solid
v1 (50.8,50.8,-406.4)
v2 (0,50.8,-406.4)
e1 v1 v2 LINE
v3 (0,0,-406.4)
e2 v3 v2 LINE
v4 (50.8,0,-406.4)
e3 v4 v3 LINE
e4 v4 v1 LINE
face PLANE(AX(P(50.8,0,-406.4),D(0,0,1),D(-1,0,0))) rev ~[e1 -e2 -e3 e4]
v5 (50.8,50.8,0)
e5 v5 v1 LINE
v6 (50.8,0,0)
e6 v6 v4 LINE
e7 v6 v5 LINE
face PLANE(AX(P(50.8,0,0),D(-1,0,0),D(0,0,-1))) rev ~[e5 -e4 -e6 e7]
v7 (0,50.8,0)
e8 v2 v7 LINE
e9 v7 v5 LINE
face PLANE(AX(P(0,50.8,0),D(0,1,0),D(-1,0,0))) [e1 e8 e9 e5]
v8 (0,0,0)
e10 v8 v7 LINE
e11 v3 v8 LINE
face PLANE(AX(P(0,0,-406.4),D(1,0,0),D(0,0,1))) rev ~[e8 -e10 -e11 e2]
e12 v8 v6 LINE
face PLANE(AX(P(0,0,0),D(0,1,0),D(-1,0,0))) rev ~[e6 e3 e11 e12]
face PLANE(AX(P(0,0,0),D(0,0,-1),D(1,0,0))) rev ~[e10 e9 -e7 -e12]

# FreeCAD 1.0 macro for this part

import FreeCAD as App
import Part
import Sketcher
Q = App.Units.Quantity

doc = App.newDocument("Part")
body = doc.addObject("PartDesign::Body", "Body")

sketch1 = body.newObject("Sketcher::SketchObject", "Sketch")
sketch1.AttachmentSupport = (doc.getObject("XZ_Plane"), [""])
sketch1.MapMode = "FlatFace"
sketch1.addGeometry([
    Part.LineSegment(App.Vector(0, -406.4, 0), App.Vector(0, 0, 0)),
    Part.LineSegment(App.Vector(0, 0, 0), App.Vector(50.8, 0, 0)),
    Part.LineSegment(App.Vector(50.8, 0, 0), App.Vector(50.8, -406.4, 0)),
    Part.LineSegment(App.Vector(50.8, -406.4, 0), App.Vector(0, -406.4, 0)),
], False)
sketch1.addConstraint([
    Sketcher.Constraint("Coincident", 0, 2, 1, 1),
    Sketcher.Constraint("Coincident", 1, 2, 2, 1),
    Sketcher.Constraint("Coincident", 2, 2, 3, 1),
    Sketcher.Constraint("Coincident", 3, 2, 0, 1),
    Sketcher.Constraint("Vertical", 0),
    Sketcher.Constraint("Horizontal", 1),
    Sketcher.Constraint("Vertical", 2),
    Sketcher.Constraint("Horizontal", 3),
    Sketcher.Constraint("Coincident", 0, 2, -1, 1),
    Sketcher.Constraint("DistanceX", 1, 1, 1, 2, Q("2 in")),
    Sketcher.Constraint("DistanceY", 0, 1, 0, 2, Q("16 in")),
])
pad1 = body.newObject("PartDesign::Pad", "Pad")
pad1.Profile = sketch1
pad1.Length = Q("2 in")
pad1.Reversed = True

doc.recompute()
